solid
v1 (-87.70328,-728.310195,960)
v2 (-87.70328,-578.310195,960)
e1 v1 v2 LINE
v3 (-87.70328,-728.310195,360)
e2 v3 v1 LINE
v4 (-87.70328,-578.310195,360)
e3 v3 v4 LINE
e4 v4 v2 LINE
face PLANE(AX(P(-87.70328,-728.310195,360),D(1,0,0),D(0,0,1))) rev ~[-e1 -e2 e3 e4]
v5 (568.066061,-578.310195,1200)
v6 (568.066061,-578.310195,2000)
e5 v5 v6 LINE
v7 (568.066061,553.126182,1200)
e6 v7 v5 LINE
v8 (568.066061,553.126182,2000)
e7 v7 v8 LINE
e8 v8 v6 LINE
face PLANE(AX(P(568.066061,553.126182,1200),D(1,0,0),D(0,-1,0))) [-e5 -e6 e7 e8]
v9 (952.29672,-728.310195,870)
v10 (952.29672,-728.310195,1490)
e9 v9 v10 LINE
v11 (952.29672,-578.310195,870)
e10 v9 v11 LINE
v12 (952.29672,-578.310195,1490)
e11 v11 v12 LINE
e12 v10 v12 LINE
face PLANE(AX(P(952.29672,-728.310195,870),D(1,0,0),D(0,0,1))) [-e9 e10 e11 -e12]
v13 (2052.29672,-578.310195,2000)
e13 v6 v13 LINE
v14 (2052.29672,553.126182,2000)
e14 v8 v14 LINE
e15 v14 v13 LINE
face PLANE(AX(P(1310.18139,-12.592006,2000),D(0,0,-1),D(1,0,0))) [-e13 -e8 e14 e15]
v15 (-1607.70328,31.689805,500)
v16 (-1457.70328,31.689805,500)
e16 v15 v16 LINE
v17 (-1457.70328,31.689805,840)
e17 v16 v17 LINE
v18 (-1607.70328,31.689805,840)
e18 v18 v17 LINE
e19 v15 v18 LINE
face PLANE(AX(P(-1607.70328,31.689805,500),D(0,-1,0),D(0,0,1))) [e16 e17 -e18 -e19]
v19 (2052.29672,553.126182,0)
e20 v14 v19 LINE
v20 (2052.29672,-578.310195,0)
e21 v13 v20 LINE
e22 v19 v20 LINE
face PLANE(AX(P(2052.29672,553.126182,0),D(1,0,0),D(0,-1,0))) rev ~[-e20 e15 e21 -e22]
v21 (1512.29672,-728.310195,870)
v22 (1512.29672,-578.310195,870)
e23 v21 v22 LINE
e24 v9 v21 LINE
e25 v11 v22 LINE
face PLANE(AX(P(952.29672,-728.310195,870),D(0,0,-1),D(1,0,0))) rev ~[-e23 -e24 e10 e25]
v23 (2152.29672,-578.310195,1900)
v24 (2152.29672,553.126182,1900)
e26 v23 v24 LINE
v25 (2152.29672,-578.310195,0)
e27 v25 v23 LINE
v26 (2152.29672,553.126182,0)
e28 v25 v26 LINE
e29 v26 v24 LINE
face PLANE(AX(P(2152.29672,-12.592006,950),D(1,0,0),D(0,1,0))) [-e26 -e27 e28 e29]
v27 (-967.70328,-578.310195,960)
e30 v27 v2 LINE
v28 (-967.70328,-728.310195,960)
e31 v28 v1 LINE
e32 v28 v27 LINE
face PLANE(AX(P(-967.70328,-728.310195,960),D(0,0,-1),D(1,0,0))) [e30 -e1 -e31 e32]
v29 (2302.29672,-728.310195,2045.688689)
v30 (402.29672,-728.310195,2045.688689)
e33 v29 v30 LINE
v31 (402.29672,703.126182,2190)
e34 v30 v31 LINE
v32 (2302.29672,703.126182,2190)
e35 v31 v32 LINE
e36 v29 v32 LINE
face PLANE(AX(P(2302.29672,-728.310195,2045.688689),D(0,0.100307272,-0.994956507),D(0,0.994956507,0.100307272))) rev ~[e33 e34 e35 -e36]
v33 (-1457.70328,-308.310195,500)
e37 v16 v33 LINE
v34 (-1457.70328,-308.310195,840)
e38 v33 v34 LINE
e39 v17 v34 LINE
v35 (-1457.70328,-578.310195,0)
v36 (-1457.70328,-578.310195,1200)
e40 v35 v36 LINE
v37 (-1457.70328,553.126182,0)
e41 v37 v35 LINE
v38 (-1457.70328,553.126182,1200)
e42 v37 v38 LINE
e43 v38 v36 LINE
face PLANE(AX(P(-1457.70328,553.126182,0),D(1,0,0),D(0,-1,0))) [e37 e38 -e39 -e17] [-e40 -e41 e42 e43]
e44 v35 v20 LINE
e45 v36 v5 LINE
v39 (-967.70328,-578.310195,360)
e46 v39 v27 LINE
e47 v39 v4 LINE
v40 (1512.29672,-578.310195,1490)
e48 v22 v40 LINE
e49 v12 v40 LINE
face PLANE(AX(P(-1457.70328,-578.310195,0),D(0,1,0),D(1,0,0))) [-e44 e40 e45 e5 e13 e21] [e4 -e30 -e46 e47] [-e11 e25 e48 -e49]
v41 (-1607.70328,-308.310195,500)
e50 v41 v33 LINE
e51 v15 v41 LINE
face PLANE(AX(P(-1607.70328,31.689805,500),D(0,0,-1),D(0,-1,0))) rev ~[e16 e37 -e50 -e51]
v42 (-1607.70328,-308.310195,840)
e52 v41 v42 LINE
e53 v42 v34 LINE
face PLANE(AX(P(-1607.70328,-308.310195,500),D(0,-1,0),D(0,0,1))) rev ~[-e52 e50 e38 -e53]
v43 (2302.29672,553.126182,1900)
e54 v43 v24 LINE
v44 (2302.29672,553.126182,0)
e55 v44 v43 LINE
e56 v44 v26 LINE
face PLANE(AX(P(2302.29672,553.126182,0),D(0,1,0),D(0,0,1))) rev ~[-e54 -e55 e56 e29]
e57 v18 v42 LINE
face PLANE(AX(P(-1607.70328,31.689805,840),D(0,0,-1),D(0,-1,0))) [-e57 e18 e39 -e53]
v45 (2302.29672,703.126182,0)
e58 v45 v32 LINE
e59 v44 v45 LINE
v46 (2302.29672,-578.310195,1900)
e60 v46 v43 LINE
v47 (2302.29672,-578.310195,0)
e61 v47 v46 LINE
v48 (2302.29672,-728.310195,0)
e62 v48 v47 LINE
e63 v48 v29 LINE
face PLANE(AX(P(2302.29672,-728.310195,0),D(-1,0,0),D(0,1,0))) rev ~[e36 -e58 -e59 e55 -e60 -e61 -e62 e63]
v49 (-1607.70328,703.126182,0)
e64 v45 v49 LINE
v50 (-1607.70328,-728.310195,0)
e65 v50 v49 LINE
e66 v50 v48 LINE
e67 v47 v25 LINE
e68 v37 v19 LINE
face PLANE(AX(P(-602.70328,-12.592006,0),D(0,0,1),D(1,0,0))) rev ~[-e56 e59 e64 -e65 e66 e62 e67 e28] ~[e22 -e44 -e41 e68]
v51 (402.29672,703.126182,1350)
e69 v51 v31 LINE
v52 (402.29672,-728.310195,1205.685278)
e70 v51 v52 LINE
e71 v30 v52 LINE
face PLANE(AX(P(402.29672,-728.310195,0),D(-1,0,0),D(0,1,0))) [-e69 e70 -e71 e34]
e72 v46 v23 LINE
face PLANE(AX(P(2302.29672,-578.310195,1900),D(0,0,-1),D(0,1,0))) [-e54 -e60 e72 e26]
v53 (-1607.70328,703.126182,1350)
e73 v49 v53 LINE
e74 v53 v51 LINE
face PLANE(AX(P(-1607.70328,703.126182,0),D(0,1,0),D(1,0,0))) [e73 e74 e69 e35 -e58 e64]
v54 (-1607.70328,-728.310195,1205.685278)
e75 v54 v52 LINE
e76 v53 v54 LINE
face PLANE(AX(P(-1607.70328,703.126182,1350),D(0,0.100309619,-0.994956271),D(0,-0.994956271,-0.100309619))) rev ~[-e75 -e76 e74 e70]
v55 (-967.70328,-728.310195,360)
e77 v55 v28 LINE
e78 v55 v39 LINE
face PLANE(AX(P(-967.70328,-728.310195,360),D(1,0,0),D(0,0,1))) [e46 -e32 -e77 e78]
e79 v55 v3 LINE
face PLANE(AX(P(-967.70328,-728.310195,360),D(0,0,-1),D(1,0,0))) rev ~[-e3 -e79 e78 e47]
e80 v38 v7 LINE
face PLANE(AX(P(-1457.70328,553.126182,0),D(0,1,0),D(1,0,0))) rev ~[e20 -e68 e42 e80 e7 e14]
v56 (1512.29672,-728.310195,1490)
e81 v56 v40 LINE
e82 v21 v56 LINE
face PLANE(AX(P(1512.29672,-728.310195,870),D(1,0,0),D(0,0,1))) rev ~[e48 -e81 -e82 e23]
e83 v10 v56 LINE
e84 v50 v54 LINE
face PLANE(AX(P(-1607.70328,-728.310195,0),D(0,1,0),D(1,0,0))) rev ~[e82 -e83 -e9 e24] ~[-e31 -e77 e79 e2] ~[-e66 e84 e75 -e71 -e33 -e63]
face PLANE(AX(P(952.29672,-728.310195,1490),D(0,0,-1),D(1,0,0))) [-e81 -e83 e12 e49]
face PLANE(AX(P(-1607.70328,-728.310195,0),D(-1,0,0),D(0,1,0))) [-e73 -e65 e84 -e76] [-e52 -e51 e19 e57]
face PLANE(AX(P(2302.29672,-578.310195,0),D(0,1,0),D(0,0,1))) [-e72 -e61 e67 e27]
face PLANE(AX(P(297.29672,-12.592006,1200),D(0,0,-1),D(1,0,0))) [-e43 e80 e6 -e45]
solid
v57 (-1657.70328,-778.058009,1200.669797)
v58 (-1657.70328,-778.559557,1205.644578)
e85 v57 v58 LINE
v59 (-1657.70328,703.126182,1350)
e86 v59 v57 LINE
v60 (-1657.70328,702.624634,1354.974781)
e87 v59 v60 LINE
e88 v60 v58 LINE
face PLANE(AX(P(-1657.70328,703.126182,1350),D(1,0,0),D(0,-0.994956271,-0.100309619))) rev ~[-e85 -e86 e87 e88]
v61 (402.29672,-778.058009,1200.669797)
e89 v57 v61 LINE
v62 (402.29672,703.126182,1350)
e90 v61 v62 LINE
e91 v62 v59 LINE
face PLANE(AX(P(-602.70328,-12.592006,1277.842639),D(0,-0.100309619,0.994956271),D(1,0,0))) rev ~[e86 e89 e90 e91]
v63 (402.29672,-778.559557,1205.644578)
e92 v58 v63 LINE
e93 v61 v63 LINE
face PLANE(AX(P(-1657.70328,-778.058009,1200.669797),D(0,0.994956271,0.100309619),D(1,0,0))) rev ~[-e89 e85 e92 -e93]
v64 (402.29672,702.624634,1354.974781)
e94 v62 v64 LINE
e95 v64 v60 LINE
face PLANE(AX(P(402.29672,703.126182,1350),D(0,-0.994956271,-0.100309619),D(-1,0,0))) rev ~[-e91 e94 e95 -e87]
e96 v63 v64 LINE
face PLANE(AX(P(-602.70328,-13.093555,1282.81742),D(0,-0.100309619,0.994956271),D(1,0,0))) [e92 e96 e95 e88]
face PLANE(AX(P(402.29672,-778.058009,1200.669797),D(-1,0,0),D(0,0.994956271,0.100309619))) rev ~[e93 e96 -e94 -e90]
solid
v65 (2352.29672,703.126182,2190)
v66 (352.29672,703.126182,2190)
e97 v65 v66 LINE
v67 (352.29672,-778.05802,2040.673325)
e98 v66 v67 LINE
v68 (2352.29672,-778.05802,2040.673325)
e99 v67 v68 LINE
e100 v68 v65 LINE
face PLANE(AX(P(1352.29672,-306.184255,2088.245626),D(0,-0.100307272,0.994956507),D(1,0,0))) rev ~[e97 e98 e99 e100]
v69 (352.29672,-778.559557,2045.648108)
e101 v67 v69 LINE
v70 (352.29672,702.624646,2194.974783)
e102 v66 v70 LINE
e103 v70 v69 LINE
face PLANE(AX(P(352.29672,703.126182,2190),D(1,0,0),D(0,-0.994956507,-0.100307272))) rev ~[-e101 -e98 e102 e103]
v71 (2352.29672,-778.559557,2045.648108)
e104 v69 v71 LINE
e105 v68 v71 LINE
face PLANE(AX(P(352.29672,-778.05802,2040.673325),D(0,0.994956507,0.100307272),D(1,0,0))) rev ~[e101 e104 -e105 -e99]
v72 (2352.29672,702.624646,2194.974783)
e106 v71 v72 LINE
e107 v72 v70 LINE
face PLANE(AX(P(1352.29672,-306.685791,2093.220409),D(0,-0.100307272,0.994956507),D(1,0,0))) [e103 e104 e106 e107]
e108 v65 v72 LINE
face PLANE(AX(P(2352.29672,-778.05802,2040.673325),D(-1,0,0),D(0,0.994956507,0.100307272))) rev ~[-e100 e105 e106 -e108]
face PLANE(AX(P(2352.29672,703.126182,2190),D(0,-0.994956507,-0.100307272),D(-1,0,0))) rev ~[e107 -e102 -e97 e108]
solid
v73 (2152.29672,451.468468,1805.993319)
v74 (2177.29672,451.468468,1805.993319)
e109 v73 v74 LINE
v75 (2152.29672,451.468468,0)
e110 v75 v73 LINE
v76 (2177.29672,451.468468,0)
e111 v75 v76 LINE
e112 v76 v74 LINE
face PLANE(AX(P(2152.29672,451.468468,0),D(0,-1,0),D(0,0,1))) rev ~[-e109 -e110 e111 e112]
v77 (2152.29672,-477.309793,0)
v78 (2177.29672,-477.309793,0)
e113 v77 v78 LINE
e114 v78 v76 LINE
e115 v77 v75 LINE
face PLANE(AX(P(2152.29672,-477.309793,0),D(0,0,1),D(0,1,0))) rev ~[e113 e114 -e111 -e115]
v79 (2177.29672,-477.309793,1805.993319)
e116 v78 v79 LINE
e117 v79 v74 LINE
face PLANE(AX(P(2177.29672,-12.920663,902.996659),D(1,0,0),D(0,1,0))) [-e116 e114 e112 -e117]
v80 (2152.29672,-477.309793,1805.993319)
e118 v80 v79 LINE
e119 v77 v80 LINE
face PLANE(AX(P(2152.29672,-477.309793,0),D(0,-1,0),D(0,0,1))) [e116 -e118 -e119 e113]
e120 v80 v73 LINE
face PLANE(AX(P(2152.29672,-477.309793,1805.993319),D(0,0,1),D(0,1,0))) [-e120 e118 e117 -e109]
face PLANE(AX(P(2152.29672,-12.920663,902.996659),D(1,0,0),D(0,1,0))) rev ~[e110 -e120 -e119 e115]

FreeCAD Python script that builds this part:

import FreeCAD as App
import Part
import Sketcher
Q = App.Units.Quantity

doc = App.newDocument("Part")
params = doc.addObject("Spreadsheet::Sheet", "Params")
for row, (alias, value) in enumerate([
    ("sketch1_width", "1900 mm"),
    ("pad1_length", "2190 mm"),
    ("sketch2_width", "2010 mm"),
    ("pad2_length", "1350 mm"),
    ("sketch3_height", "1900 mm"),
    ("pocket1_length", "150 mm"),
    ("pocket2_length", "1900 mm"),
    ("pocket3_length", "2010 mm"),
    ("sketch6_width", "3510 mm"),
    ("pocket4_length", "1200 mm"),
    ("pocket5_length", "800 mm"),
    ("sketch8_width", "880 mm"),
    ("sketch8_width2", "560 mm"),
    ("sketch8_height", "600 mm"),
    ("sketch8_height2", "620 mm"),
    ("pocket6_length", "150 mm"),
    ("sketch9_width", "340 mm"),
    ("pocket7_length", "150 mm"),
    ("pad3_length", "25 mm"),
    ("sketch11_width", "2000 mm"),
    ("pad4_length", "5 mm"),
    ("sketch12_width", "2060 mm"),
    ("pad5_length", "5 mm"),
], start=1):
    params.set(f"A{row}", alias)
    params.set(f"B{row}", "=" + value)
    params.setAlias(f"B{row}", alias)

body = doc.addObject("PartDesign::Body", "Body")

# Sketch on XY plane
sketch1 = body.newObject("Sketcher::SketchObject", "Sketch")
sketch1.AttachmentSupport = (doc.getObject("XY_Plane"), [""])
sketch1.MapMode = "FlatFace"
sketch1.addGeometry(Part.LineSegment(App.Vector(402.29672, 703.126182, 0), App.Vector(402.29672, -728.310195, 0)), False)
sketch1.addGeometry(Part.LineSegment(App.Vector(402.29672, -728.310195, 0), App.Vector(2302.29672, -728.310195, 0)), False)
sketch1.addGeometry(Part.LineSegment(App.Vector(2302.29672, -728.310195, 0), App.Vector(2302.29672, 703.126182, 0)), False)
sketch1.addGeometry(Part.LineSegment(App.Vector(2302.29672, 703.126182, 0), App.Vector(402.29672, 703.126182, 0)), False)
sketch1.addConstraint(Sketcher.Constraint("Coincident", 0, 2, 1, 1))
sketch1.addConstraint(Sketcher.Constraint("Coincident", 1, 2, 2, 1))
sketch1.addConstraint(Sketcher.Constraint("Coincident", 2, 2, 3, 1))
sketch1.addConstraint(Sketcher.Constraint("Coincident", 3, 2, 0, 1))
sketch1.addConstraint(Sketcher.Constraint("Vertical", 0))
sketch1.addConstraint(Sketcher.Constraint("Horizontal", 1))
sketch1.addConstraint(Sketcher.Constraint("Vertical", 2))
sketch1.addConstraint(Sketcher.Constraint("Horizontal", 3))
sketch1.addConstraint(Sketcher.Constraint("DistanceX", 1, 1, 1, 2, Q("1900 mm")))
sketch1.addConstraint(Sketcher.Constraint("DistanceY", 0, 2, 0, 1, Q("1431.436377 mm")))
sketch1.addConstraint(Sketcher.Constraint("DistanceX", -1, 1, 0, 2, Q("402.29672 mm")))
sketch1.addConstraint(Sketcher.Constraint("DistanceY", 0, 2, -1, 1, Q("728.310195 mm")))
sketch1.setExpression("Constraints[8]", "Params.sketch1_width")
pad1 = body.newObject("PartDesign::Pad", "Pad")
pad1.Profile = sketch1
pad1.setExpression("Length", "Params.pad1_length")

# Sketch on XY plane
sketch2 = body.newObject("Sketcher::SketchObject", "Sketch001")
sketch2.AttachmentSupport = (doc.getObject("XY_Plane"), [""])
sketch2.MapMode = "FlatFace"
sketch2.addGeometry(Part.LineSegment(App.Vector(-1607.70328, 703.126182, 0), App.Vector(-1607.70328, -728.310195, 0)), False)
sketch2.addGeometry(Part.LineSegment(App.Vector(-1607.70328, -728.310195, 0), App.Vector(402.29672, -728.310195, 0)), False)
sketch2.addGeometry(Part.LineSegment(App.Vector(402.29672, -728.310195, 0), App.Vector(402.29672, 703.126182, 0)), False)
sketch2.addGeometry(Part.LineSegment(App.Vector(402.29672, 703.126182, 0), App.Vector(-1607.70328, 703.126182, 0)), False)
sketch2.addConstraint(Sketcher.Constraint("Coincident", 0, 2, 1, 1))
sketch2.addConstraint(Sketcher.Constraint("Coincident", 1, 2, 2, 1))
sketch2.addConstraint(Sketcher.Constraint("Coincident", 2, 2, 3, 1))
sketch2.addConstraint(Sketcher.Constraint("Coincident", 3, 2, 0, 1))
sketch2.addConstraint(Sketcher.Constraint("Vertical", 0))
sketch2.addConstraint(Sketcher.Constraint("Horizontal", 1))
sketch2.addConstraint(Sketcher.Constraint("Vertical", 2))
sketch2.addConstraint(Sketcher.Constraint("Horizontal", 3))
sketch2.addConstraint(Sketcher.Constraint("DistanceX", 1, 1, 1, 2, Q("2010 mm")))
sketch2.addConstraint(Sketcher.Constraint("DistanceY", 0, 2, 0, 1, Q("1431.436377 mm")))
sketch2.addConstraint(Sketcher.Constraint("DistanceX", 0, 2, -1, 1, Q("1607.70328 mm")))
sketch2.addConstraint(Sketcher.Constraint("DistanceY", 0, 2, -1, 1, Q("728.310195 mm")))
sketch2.setExpression("Constraints[8]", "Params.sketch2_width")
pad2 = body.newObject("PartDesign::Pad", "Pad001")
pad2.Profile = sketch2
pad2.setExpression("Length", "Params.pad2_length")

# Sketch on YZ plane
sketch3 = body.newObject("Sketcher::SketchObject", "Sketch002")
sketch3.AttachmentSupport = (doc.getObject("YZ_Plane"), [""])
sketch3.MapMode = "FlatFace"
sketch3.AttachmentOffset = App.Placement(App.Vector(0, 0, 2302.29672), App.Rotation())
sketch3.addGeometry(Part.LineSegment(App.Vector(-578.310195, 1900, 0), App.Vector(-578.310195, 0, 0)), False)
sketch3.addGeometry(Part.LineSegment(App.Vector(-578.310195, 0, 0), App.Vector(553.126182, 0, 0)), False)
sketch3.addGeometry(Part.LineSegment(App.Vector(553.126182, 0, 0), App.Vector(553.126182, 1900, 0)), False)
sketch3.addGeometry(Part.LineSegment(App.Vector(553.126182, 1900, 0), App.Vector(-578.310195, 1900, 0)), False)
sketch3.addConstraint(Sketcher.Constraint("Coincident", 0, 2, 1, 1))
sketch3.addConstraint(Sketcher.Constraint("Coincident", 1, 2, 2, 1))
sketch3.addConstraint(Sketcher.Constraint("Coincident", 2, 2, 3, 1))
sketch3.addConstraint(Sketcher.Constraint("Coincident", 3, 2, 0, 1))
sketch3.addConstraint(Sketcher.Constraint("Vertical", 0))
sketch3.addConstraint(Sketcher.Constraint("Horizontal", 1))
sketch3.addConstraint(Sketcher.Constraint("Vertical", 2))
sketch3.addConstraint(Sketcher.Constraint("Horizontal", 3))
sketch3.addConstraint(Sketcher.Constraint("PointOnObject", 0, 2, -1))
sketch3.addConstraint(Sketcher.Constraint("DistanceY", 0, 2, 0, 1, Q("1900 mm")))
sketch3.addConstraint(Sketcher.Constraint("DistanceX", 1, 1, 1, 2, Q("1131.436377 mm")))
sketch3.addConstraint(Sketcher.Constraint("DistanceX", 0, 2, -1, 1, Q("578.310195 mm")))
sketch3.setExpression("Constraints[9]", "Params.sketch3_height")
pocket1 = body.newObject("PartDesign::Pocket", "Pocket")
pocket1.Profile = sketch3
pocket1.setExpression("Length", "Params.pocket1_length")

# Sketch on YZ plane
sketch4 = body.newObject("Sketcher::SketchObject", "Sketch003")
sketch4.AttachmentSupport = (doc.getObject("YZ_Plane"), [""])
sketch4.MapMode = "FlatFace"
sketch4.AttachmentOffset = App.Placement(App.Vector(0, 0, 2302.29672), App.Rotation())
sketch4.addGeometry(Part.LineSegment(App.Vector(-728.310195, 2045.688689, 0), App.Vector(703.126182, 2190, 0)), False)
sketch4.addGeometry(Part.LineSegment(App.Vector(703.126182, 2190, 0), App.Vector(-728.310195, 2190, 0)), False)
sketch4.addGeometry(Part.LineSegment(App.Vector(-728.310195, 2190, 0), App.Vector(-728.310195, 2045.688689, 0)), False)
sketch4.addConstraint(Sketcher.Constraint("Coincident", 0, 2, 1, 1))
sketch4.addConstraint(Sketcher.Constraint("Coincident", 1, 2, 2, 1))
sketch4.addConstraint(Sketcher.Constraint("Coincident", 2, 2, 0, 1))
sketch4.addConstraint(Sketcher.Constraint("Horizontal", 1))
sketch4.addConstraint(Sketcher.Constraint("Vertical", 2))
sketch4.addConstraint(Sketcher.Constraint("DistanceY", -1, 1, 0, 2, Q("2190 mm")))
sketch4.addConstraint(Sketcher.Constraint("DistanceY", 2, 2, 2, 1, Q("144.311311 mm")))
sketch4.addConstraint(Sketcher.Constraint("DistanceX", 1, 2, 1, 1, Q("1431.436377 mm")))
sketch4.addConstraint(Sketcher.Constraint("DistanceX", -1, 1, 0, 2, Q("703.126182 mm")))
pocket2 = body.newObject("PartDesign::Pocket", "Pocket001")
pocket2.Profile = sketch4
pocket2.setExpression("Length", "Params.pocket2_length")

# Sketch on YZ plane
sketch5 = body.newObject("Sketcher::SketchObject", "Sketch004")
sketch5.AttachmentSupport = (doc.getObject("YZ_Plane"), [""])
sketch5.MapMode = "FlatFace"
sketch5.AttachmentOffset = App.Placement(App.Vector(0, 0, -1607.70328), App.Rotation())
sketch5.addGeometry(Part.LineSegment(App.Vector(-728.310195, 1350, 0), App.Vector(703.126182, 1350, 0)), False)
sketch5.addGeometry(Part.LineSegment(App.Vector(703.126182, 1350, 0), App.Vector(-728.310195, 1205.685278, 0)), False)
sketch5.addGeometry(Part.LineSegment(App.Vector(-728.310195, 1205.685278, 0), App.Vector(-728.310195, 1350, 0)), False)
sketch5.addConstraint(Sketcher.Constraint("Coincident", 0, 2, 1, 1))
sketch5.addConstraint(Sketcher.Constraint("Coincident", 1, 2, 2, 1))
sketch5.addConstraint(Sketcher.Constraint("Coincident", 2, 2, 0, 1))
sketch5.addConstraint(Sketcher.Constraint("Horizontal", 0))
sketch5.addConstraint(Sketcher.Constraint("Vertical", 2))
sketch5.addConstraint(Sketcher.Constraint("DistanceY", -1, 1, 0, 2, Q("1350 mm")))
sketch5.addConstraint(Sketcher.Constraint("DistanceX", 0, 1, 0, 2, Q("1431.436377 mm")))
sketch5.addConstraint(Sketcher.Constraint("DistanceY", 2, 1, 2, 2, Q("144.314722 mm")))
sketch5.addConstraint(Sketcher.Constraint("DistanceX", -1, 1, 0, 2, Q("703.126182 mm")))
pocket3 = body.newObject("PartDesign::Pocket", "Pocket002")
pocket3.Profile = sketch5
pocket3.setExpression("Length", "Params.pocket3_length")
pocket3.Reversed = True

# Sketch on XY plane
sketch6 = body.newObject("Sketcher::SketchObject", "Sketch005")
sketch6.AttachmentSupport = (doc.getObject("XY_Plane"), [""])
sketch6.MapMode = "FlatFace"
sketch6.addGeometry(Part.LineSegment(App.Vector(-1457.70328, -578.310195, 0), App.Vector(-1457.70328, 553.126182, 0)), False)
sketch6.addGeometry(Part.LineSegment(App.Vector(-1457.70328, 553.126182, 0), App.Vector(2052.29672, 553.126182, 0)), False)
sketch6.addGeometry(Part.LineSegment(App.Vector(2052.29672, 553.126182, 0), App.Vector(2052.29672, -578.310195, 0)), False)
sketch6.addGeometry(Part.LineSegment(App.Vector(2052.29672, -578.310195, 0), App.Vector(-1457.70328, -578.310195, 0)), False)
sketch6.addConstraint(Sketcher.Constraint("Coincident", 0, 2, 1, 1))
sketch6.addConstraint(Sketcher.Constraint("Coincident", 1, 2, 2, 1))
sketch6.addConstraint(Sketcher.Constraint("Coincident", 2, 2, 3, 1))
sketch6.addConstraint(Sketcher.Constraint("Coincident", 3, 2, 0, 1))
sketch6.addConstraint(Sketcher.Constraint("Vertical", 0))
sketch6.addConstraint(Sketcher.Constraint("Horizontal", 1))
sketch6.addConstraint(Sketcher.Constraint("Vertical", 2))
sketch6.addConstraint(Sketcher.Constraint("Horizontal", 3))
sketch6.addConstraint(Sketcher.Constraint("DistanceX", 1, 1, 1, 2, Q("3510 mm")))
sketch6.addConstraint(Sketcher.Constraint("DistanceY", 0, 1, 0, 2, Q("1131.436377 mm")))
sketch6.addConstraint(Sketcher.Constraint("DistanceX", 0, 2, -1, 1, Q("1457.70328 mm")))
sketch6.addConstraint(Sketcher.Constraint("DistanceY", -1, 1, 0, 2, Q("553.126182 mm")))
sketch6.setExpression("Constraints[8]", "Params.sketch6_width")
pocket4 = body.newObject("PartDesign::Pocket", "Pocket003")
pocket4.Profile = sketch6
pocket4.setExpression("Length", "Params.pocket4_length")
pocket4.Reversed = True

# Sketch on XY plane
sketch7 = body.newObject("Sketcher::SketchObject", "Sketch006")
sketch7.AttachmentSupport = (doc.getObject("XY_Plane"), [""])
sketch7.MapMode = "FlatFace"
sketch7.AttachmentOffset = App.Placement(App.Vector(0, 0, 1200), App.Rotation())
sketch7.addGeometry(Part.LineSegment(App.Vector(568.066061, -578.310195, 0), App.Vector(568.066061, 553.126182, 0)), False)
sketch7.addGeometry(Part.LineSegment(App.Vector(568.066061, 553.126182, 0), App.Vector(2052.29672, 553.126182, 0)), False)
sketch7.addGeometry(Part.LineSegment(App.Vector(2052.29672, 553.126182, 0), App.Vector(2052.29672, -578.310195, 0)), False)
sketch7.addGeometry(Part.LineSegment(App.Vector(2052.29672, -578.310195, 0), App.Vector(568.066061, -578.310195, 0)), False)
sketch7.addConstraint(Sketcher.Constraint("Coincident", 0, 2, 1, 1))
sketch7.addConstraint(Sketcher.Constraint("Coincident", 1, 2, 2, 1))
sketch7.addConstraint(Sketcher.Constraint("Coincident", 2, 2, 3, 1))
sketch7.addConstraint(Sketcher.Constraint("Coincident", 3, 2, 0, 1))
sketch7.addConstraint(Sketcher.Constraint("Vertical", 0))
sketch7.addConstraint(Sketcher.Constraint("Horizontal", 1))
sketch7.addConstraint(Sketcher.Constraint("Vertical", 2))
sketch7.addConstraint(Sketcher.Constraint("Horizontal", 3))
sketch7.addConstraint(Sketcher.Constraint("DistanceX", 1, 1, 1, 2, Q("1484.23066 mm")))
sketch7.addConstraint(Sketcher.Constraint("DistanceY", 0, 1, 0, 2, Q("1131.436377 mm")))
sketch7.addConstraint(Sketcher.Constraint("DistanceX", -1, 1, 0, 2, Q("568.066061 mm")))
sketch7.addConstraint(Sketcher.Constraint("DistanceY", -1, 1, 0, 2, Q("553.126182 mm")))
pocket5 = body.newObject("PartDesign::Pocket", "Pocket004")
pocket5.Profile = sketch7
pocket5.setExpression("Length", "Params.pocket5_length")
pocket5.Reversed = True

# Sketch on XZ plane
sketch8 = body.newObject("Sketcher::SketchObject", "Sketch007")
sketch8.AttachmentSupport = (doc.getObject("XZ_Plane"), [""])
sketch8.MapMode = "FlatFace"
sketch8.AttachmentOffset = App.Placement(App.Vector(0, 0, 728.310195), App.Rotation())
sketch8.addGeometry(Part.LineSegment(App.Vector(-967.70328, 960, 0), App.Vector(-967.70328, 360, 0)), False)
sketch8.addGeometry(Part.LineSegment(App.Vector(-967.70328, 360, 0), App.Vector(-87.70328, 360, 0)), False)
sketch8.addGeometry(Part.LineSegment(App.Vector(-87.70328, 360, 0), App.Vector(-87.70328, 960, 0)), False)
sketch8.addGeometry(Part.LineSegment(App.Vector(-87.70328, 960, 0), App.Vector(-967.70328, 960, 0)), False)
sketch8.addGeometry(Part.LineSegment(App.Vector(952.29672, 1490, 0), App.Vector(952.29672, 870, 0)), False)
sketch8.addGeometry(Part.LineSegment(App.Vector(952.29672, 870, 0), App.Vector(1512.29672, 870, 0)), False)
sketch8.addGeometry(Part.LineSegment(App.Vector(1512.29672, 870, 0), App.Vector(1512.29672, 1490, 0)), False)
sketch8.addGeometry(Part.LineSegment(App.Vector(1512.29672, 1490, 0), App.Vector(952.29672, 1490, 0)), False)
sketch8.addConstraint(Sketcher.Constraint("Coincident", 0, 2, 1, 1))
sketch8.addConstraint(Sketcher.Constraint("Coincident", 1, 2, 2, 1))
sketch8.addConstraint(Sketcher.Constraint("Coincident", 2, 2, 3, 1))
sketch8.addConstraint(Sketcher.Constraint("Coincident", 3, 2, 0, 1))
sketch8.addConstraint(Sketcher.Constraint("Coincident", 4, 2, 5, 1))
sketch8.addConstraint(Sketcher.Constraint("Coincident", 5, 2, 6, 1))
sketch8.addConstraint(Sketcher.Constraint("Coincident", 6, 2, 7, 1))
sketch8.addConstraint(Sketcher.Constraint("Coincident", 7, 2, 4, 1))
sketch8.addConstraint(Sketcher.Constraint("Vertical", 0))
sketch8.addConstraint(Sketcher.Constraint("Horizontal", 1))
sketch8.addConstraint(Sketcher.Constraint("Vertical", 2))
sketch8.addConstraint(Sketcher.Constraint("Horizontal", 3))
sketch8.addConstraint(Sketcher.Constraint("Vertical", 4))
sketch8.addConstraint(Sketcher.Constraint("Horizontal", 5))
sketch8.addConstraint(Sketcher.Constraint("Vertical", 6))
sketch8.addConstraint(Sketcher.Constraint("Horizontal", 7))
sketch8.addConstraint(Sketcher.Constraint("DistanceX", 1, 1, 1, 2, Q("880 mm")))
sketch8.addConstraint(Sketcher.Constraint("DistanceX", 5, 1, 5, 2, Q("560 mm")))
sketch8.addConstraint(Sketcher.Constraint("DistanceY", 0, 2, 0, 1, Q("600 mm")))
sketch8.addConstraint(Sketcher.Constraint("DistanceY", 4, 2, 4, 1, Q("620 mm")))
sketch8.addConstraint(Sketcher.Constraint("DistanceY", -1, 1, 0, 2, Q("360 mm")))
sketch8.addConstraint(Sketcher.Constraint("DistanceY", -1, 1, 4, 2, Q("870 mm")))
sketch8.addConstraint(Sketcher.Constraint("DistanceX", 2, 2, 4, 2, Q("1040 mm")))
sketch8.addConstraint(Sketcher.Constraint("DistanceX", 0, 2, -1, 1, Q("967.70328 mm")))
sketch8.setExpression("Constraints[16]", "Params.sketch8_width")
sketch8.setExpression("Constraints[17]", "Params.sketch8_width2")
sketch8.setExpression("Constraints[18]", "Params.sketch8_height")
sketch8.setExpression("Constraints[19]", "Params.sketch8_height2")
pocket6 = body.newObject("PartDesign::Pocket", "Pocket005")
pocket6.Profile = sketch8
pocket6.setExpression("Length", "Params.pocket6_length")

# Sketch on YZ plane
sketch9 = body.newObject("Sketcher::SketchObject", "Sketch008")
sketch9.AttachmentSupport = (doc.getObject("YZ_Plane"), [""])
sketch9.MapMode = "FlatFace"
sketch9.AttachmentOffset = App.Placement(App.Vector(0, 0, -1607.70328), App.Rotation())
sketch9.addGeometry(Part.LineSegment(App.Vector(31.689805, 840, 0), App.Vector(31.689805, 500, 0)), False)
sketch9.addGeometry(Part.LineSegment(App.Vector(31.689805, 500, 0), App.Vector(-308.310195, 500, 0)), False)
sketch9.addGeometry(Part.LineSegment(App.Vector(-308.310195, 500, 0), App.Vector(-308.310195, 840, 0)), False)
sketch9.addGeometry(Part.LineSegment(App.Vector(-308.310195, 840, 0), App.Vector(31.689805, 840, 0)), False)
sketch9.addConstraint(Sketcher.Constraint("Coincident", 0, 2, 1, 1))
sketch9.addConstraint(Sketcher.Constraint("Coincident", 1, 2, 2, 1))
sketch9.addConstraint(Sketcher.Constraint("Coincident", 2, 2, 3, 1))
sketch9.addConstraint(Sketcher.Constraint("Coincident", 3, 2, 0, 1))
sketch9.addConstraint(Sketcher.Constraint("Vertical", 0))
sketch9.addConstraint(Sketcher.Constraint("Horizontal", 1))
sketch9.addConstraint(Sketcher.Constraint("Vertical", 2))
sketch9.addConstraint(Sketcher.Constraint("Horizontal", 3))
sketch9.addConstraint(Sketcher.Constraint("Equal", 3, 0))
sketch9.addConstraint(Sketcher.Constraint("DistanceX", 1, 2, 1, 1, Q("340 mm")))
sketch9.addConstraint(Sketcher.Constraint("DistanceY", -1, 1, 0, 2, Q("500 mm")))
sketch9.addConstraint(Sketcher.Constraint("DistanceX", -1, 1, 0, 2, Q("31.689805 mm")))
sketch9.setExpression("Constraints[9]", "Params.sketch9_width")
pocket7 = body.newObject("PartDesign::Pocket", "Pocket006")
pocket7.Profile = sketch9
pocket7.setExpression("Length", "Params.pocket7_length")
pocket7.Reversed = True
body2 = doc.addObject("PartDesign::Body", "Body001")

# Sketch on YZ plane
sketch10 = body2.newObject("Sketcher::SketchObject", "Sketch009")
sketch10.AttachmentSupport = (doc.getObject("YZ_Plane001"), [""])
sketch10.MapMode = "FlatFace"
sketch10.AttachmentOffset = App.Placement(App.Vector(0, 0, 2152.29672), App.Rotation())
sketch10.addGeometry(Part.LineSegment(App.Vector(-477.309793, 1805.993319, 0), App.Vector(-477.309793, 0, 0)), False)
sketch10.addGeometry(Part.LineSegment(App.Vector(-477.309793, 0, 0), App.Vector(451.468468, 0, 0)), False)
sketch10.addGeometry(Part.LineSegment(App.Vector(451.468468, 0, 0), App.Vector(451.468468, 1805.993319, 0)), False)
sketch10.addGeometry(Part.LineSegment(App.Vector(451.468468, 1805.993319, 0), App.Vector(-477.309793, 1805.993319, 0)), False)
sketch10.addConstraint(Sketcher.Constraint("Coincident", 0, 2, 1, 1))
sketch10.addConstraint(Sketcher.Constraint("Coincident", 1, 2, 2, 1))
sketch10.addConstraint(Sketcher.Constraint("Coincident", 2, 2, 3, 1))
sketch10.addConstraint(Sketcher.Constraint("Coincident", 3, 2, 0, 1))
sketch10.addConstraint(Sketcher.Constraint("Vertical", 0))
sketch10.addConstraint(Sketcher.Constraint("Horizontal", 1))
sketch10.addConstraint(Sketcher.Constraint("Vertical", 2))
sketch10.addConstraint(Sketcher.Constraint("Horizontal", 3))
sketch10.addConstraint(Sketcher.Constraint("PointOnObject", 0, 2, -1))
sketch10.addConstraint(Sketcher.Constraint("DistanceX", 1, 1, 1, 2, Q("928.778261 mm")))
sketch10.addConstraint(Sketcher.Constraint("DistanceY", 0, 2, 0, 1, Q("1805.993319 mm")))
sketch10.addConstraint(Sketcher.Constraint("DistanceX", 0, 2, -1, 1, Q("477.309793 mm")))
pad3 = body2.newObject("PartDesign::Pad", "Pad002")
pad3.Profile = sketch10
pad3.setExpression("Length", "Params.pad3_length")
body3 = doc.addObject("PartDesign::Body", "Body002")

# Sketch on an angled plane
sketch11 = body3.newObject("Sketcher::SketchObject", "Sketch010")
sketch11.Placement = App.Placement(App.Vector(0, -211.490468, 2097.79225), App.Rotation(App.Vector(1, 0, 0), App.Vector(0, 0.994956507, 0.100307272), App.Vector(0, -0.100307272, 0.994956507), "ZXY"))
sketch11.addGeometry(Part.LineSegment(App.Vector(2352.29672, -569.439516, 0), App.Vector(2352.29672, 919.252895, 0)), False)
sketch11.addGeometry(Part.LineSegment(App.Vector(2352.29672, 919.252895, 0), App.Vector(352.29672, 919.252895, 0)), False)
sketch11.addGeometry(Part.LineSegment(App.Vector(352.29672, 919.252895, 0), App.Vector(352.29672, -569.439516, 0)), False)
sketch11.addGeometry(Part.LineSegment(App.Vector(352.29672, -569.439516, 0), App.Vector(2352.29672, -569.439516, 0)), False)
sketch11.addConstraint(Sketcher.Constraint("Coincident", 0, 2, 1, 1))
sketch11.addConstraint(Sketcher.Constraint("Coincident", 1, 2, 2, 1))
sketch11.addConstraint(Sketcher.Constraint("Coincident", 2, 2, 3, 1))
sketch11.addConstraint(Sketcher.Constraint("Coincident", 3, 2, 0, 1))
sketch11.addConstraint(Sketcher.Constraint("Vertical", 0))
sketch11.addConstraint(Sketcher.Constraint("Horizontal", 1))
sketch11.addConstraint(Sketcher.Constraint("Vertical", 2))
sketch11.addConstraint(Sketcher.Constraint("Horizontal", 3))
sketch11.addConstraint(Sketcher.Constraint("DistanceX", 1, 2, 1, 1, Q("2000 mm")))
sketch11.addConstraint(Sketcher.Constraint("DistanceY", 0, 1, 0, 2, Q("1488.692411 mm")))
sketch11.addConstraint(Sketcher.Constraint("DistanceX", -1, 1, 0, 2, Q("2352.29672 mm")))
sketch11.addConstraint(Sketcher.Constraint("DistanceY", -1, 1, 0, 2, Q("919.252895 mm")))
sketch11.setExpression("Constraints[8]", "Params.sketch11_width")
pad4 = body3.newObject("PartDesign::Pad", "Pad003")
pad4.Profile = sketch11
pad4.setExpression("Length", "Params.pad4_length")
body4 = doc.addObject("PartDesign::Body", "Body003")

# Sketch on an angled plane
sketch12 = body4.newObject("Sketcher::SketchObject", "Sketch011")
sketch12.Placement = App.Placement(App.Vector(0, -127.660105, 1266.24169), App.Rotation(App.Vector(1, 0, 0), App.Vector(0, 0.994956271, 0.100309619), App.Vector(0, -0.100309619, 0.994956271), "ZXY"))
sketch12.addGeometry(Part.LineSegment(App.Vector(402.29672, 834.997791, 0), App.Vector(-1657.70328, 834.997791, 0)), False)
sketch12.addGeometry(Part.LineSegment(App.Vector(-1657.70328, 834.997791, 0), App.Vector(-1657.70328, -653.694965, 0)), False)
sketch12.addGeometry(Part.LineSegment(App.Vector(-1657.70328, -653.694965, 0), App.Vector(402.29672, -653.694965, 0)), False)
sketch12.addGeometry(Part.LineSegment(App.Vector(402.29672, -653.694965, 0), App.Vector(402.29672, 834.997791, 0)), False)
sketch12.addConstraint(Sketcher.Constraint("Coincident", 0, 2, 1, 1))
sketch12.addConstraint(Sketcher.Constraint("Coincident", 1, 2, 2, 1))
sketch12.addConstraint(Sketcher.Constraint("Coincident", 2, 2, 3, 1))
sketch12.addConstraint(Sketcher.Constraint("Coincident", 3, 2, 0, 1))
sketch12.addConstraint(Sketcher.Constraint("Horizontal", 0))
sketch12.addConstraint(Sketcher.Constraint("Vertical", 1))
sketch12.addConstraint(Sketcher.Constraint("Horizontal", 2))
sketch12.addConstraint(Sketcher.Constraint("Vertical", 3))
sketch12.addConstraint(Sketcher.Constraint("DistanceX", 0, 2, 0, 1, Q("2060 mm")))
sketch12.addConstraint(Sketcher.Constraint("DistanceY", 1, 2, 1, 1, Q("1488.692755 mm")))
sketch12.addConstraint(Sketcher.Constraint("DistanceX", 0, 2, -1, 1, Q("1657.70328 mm")))
sketch12.addConstraint(Sketcher.Constraint("DistanceY", -1, 1, 0, 2, Q("834.997791 mm")))
sketch12.setExpression("Constraints[8]", "Params.sketch12_width")
pad5 = body4.newObject("PartDesign::Pad", "Pad004")
pad5.Profile = sketch12
pad5.setExpression("Length", "Params.pad5_length")

doc.recompute()
